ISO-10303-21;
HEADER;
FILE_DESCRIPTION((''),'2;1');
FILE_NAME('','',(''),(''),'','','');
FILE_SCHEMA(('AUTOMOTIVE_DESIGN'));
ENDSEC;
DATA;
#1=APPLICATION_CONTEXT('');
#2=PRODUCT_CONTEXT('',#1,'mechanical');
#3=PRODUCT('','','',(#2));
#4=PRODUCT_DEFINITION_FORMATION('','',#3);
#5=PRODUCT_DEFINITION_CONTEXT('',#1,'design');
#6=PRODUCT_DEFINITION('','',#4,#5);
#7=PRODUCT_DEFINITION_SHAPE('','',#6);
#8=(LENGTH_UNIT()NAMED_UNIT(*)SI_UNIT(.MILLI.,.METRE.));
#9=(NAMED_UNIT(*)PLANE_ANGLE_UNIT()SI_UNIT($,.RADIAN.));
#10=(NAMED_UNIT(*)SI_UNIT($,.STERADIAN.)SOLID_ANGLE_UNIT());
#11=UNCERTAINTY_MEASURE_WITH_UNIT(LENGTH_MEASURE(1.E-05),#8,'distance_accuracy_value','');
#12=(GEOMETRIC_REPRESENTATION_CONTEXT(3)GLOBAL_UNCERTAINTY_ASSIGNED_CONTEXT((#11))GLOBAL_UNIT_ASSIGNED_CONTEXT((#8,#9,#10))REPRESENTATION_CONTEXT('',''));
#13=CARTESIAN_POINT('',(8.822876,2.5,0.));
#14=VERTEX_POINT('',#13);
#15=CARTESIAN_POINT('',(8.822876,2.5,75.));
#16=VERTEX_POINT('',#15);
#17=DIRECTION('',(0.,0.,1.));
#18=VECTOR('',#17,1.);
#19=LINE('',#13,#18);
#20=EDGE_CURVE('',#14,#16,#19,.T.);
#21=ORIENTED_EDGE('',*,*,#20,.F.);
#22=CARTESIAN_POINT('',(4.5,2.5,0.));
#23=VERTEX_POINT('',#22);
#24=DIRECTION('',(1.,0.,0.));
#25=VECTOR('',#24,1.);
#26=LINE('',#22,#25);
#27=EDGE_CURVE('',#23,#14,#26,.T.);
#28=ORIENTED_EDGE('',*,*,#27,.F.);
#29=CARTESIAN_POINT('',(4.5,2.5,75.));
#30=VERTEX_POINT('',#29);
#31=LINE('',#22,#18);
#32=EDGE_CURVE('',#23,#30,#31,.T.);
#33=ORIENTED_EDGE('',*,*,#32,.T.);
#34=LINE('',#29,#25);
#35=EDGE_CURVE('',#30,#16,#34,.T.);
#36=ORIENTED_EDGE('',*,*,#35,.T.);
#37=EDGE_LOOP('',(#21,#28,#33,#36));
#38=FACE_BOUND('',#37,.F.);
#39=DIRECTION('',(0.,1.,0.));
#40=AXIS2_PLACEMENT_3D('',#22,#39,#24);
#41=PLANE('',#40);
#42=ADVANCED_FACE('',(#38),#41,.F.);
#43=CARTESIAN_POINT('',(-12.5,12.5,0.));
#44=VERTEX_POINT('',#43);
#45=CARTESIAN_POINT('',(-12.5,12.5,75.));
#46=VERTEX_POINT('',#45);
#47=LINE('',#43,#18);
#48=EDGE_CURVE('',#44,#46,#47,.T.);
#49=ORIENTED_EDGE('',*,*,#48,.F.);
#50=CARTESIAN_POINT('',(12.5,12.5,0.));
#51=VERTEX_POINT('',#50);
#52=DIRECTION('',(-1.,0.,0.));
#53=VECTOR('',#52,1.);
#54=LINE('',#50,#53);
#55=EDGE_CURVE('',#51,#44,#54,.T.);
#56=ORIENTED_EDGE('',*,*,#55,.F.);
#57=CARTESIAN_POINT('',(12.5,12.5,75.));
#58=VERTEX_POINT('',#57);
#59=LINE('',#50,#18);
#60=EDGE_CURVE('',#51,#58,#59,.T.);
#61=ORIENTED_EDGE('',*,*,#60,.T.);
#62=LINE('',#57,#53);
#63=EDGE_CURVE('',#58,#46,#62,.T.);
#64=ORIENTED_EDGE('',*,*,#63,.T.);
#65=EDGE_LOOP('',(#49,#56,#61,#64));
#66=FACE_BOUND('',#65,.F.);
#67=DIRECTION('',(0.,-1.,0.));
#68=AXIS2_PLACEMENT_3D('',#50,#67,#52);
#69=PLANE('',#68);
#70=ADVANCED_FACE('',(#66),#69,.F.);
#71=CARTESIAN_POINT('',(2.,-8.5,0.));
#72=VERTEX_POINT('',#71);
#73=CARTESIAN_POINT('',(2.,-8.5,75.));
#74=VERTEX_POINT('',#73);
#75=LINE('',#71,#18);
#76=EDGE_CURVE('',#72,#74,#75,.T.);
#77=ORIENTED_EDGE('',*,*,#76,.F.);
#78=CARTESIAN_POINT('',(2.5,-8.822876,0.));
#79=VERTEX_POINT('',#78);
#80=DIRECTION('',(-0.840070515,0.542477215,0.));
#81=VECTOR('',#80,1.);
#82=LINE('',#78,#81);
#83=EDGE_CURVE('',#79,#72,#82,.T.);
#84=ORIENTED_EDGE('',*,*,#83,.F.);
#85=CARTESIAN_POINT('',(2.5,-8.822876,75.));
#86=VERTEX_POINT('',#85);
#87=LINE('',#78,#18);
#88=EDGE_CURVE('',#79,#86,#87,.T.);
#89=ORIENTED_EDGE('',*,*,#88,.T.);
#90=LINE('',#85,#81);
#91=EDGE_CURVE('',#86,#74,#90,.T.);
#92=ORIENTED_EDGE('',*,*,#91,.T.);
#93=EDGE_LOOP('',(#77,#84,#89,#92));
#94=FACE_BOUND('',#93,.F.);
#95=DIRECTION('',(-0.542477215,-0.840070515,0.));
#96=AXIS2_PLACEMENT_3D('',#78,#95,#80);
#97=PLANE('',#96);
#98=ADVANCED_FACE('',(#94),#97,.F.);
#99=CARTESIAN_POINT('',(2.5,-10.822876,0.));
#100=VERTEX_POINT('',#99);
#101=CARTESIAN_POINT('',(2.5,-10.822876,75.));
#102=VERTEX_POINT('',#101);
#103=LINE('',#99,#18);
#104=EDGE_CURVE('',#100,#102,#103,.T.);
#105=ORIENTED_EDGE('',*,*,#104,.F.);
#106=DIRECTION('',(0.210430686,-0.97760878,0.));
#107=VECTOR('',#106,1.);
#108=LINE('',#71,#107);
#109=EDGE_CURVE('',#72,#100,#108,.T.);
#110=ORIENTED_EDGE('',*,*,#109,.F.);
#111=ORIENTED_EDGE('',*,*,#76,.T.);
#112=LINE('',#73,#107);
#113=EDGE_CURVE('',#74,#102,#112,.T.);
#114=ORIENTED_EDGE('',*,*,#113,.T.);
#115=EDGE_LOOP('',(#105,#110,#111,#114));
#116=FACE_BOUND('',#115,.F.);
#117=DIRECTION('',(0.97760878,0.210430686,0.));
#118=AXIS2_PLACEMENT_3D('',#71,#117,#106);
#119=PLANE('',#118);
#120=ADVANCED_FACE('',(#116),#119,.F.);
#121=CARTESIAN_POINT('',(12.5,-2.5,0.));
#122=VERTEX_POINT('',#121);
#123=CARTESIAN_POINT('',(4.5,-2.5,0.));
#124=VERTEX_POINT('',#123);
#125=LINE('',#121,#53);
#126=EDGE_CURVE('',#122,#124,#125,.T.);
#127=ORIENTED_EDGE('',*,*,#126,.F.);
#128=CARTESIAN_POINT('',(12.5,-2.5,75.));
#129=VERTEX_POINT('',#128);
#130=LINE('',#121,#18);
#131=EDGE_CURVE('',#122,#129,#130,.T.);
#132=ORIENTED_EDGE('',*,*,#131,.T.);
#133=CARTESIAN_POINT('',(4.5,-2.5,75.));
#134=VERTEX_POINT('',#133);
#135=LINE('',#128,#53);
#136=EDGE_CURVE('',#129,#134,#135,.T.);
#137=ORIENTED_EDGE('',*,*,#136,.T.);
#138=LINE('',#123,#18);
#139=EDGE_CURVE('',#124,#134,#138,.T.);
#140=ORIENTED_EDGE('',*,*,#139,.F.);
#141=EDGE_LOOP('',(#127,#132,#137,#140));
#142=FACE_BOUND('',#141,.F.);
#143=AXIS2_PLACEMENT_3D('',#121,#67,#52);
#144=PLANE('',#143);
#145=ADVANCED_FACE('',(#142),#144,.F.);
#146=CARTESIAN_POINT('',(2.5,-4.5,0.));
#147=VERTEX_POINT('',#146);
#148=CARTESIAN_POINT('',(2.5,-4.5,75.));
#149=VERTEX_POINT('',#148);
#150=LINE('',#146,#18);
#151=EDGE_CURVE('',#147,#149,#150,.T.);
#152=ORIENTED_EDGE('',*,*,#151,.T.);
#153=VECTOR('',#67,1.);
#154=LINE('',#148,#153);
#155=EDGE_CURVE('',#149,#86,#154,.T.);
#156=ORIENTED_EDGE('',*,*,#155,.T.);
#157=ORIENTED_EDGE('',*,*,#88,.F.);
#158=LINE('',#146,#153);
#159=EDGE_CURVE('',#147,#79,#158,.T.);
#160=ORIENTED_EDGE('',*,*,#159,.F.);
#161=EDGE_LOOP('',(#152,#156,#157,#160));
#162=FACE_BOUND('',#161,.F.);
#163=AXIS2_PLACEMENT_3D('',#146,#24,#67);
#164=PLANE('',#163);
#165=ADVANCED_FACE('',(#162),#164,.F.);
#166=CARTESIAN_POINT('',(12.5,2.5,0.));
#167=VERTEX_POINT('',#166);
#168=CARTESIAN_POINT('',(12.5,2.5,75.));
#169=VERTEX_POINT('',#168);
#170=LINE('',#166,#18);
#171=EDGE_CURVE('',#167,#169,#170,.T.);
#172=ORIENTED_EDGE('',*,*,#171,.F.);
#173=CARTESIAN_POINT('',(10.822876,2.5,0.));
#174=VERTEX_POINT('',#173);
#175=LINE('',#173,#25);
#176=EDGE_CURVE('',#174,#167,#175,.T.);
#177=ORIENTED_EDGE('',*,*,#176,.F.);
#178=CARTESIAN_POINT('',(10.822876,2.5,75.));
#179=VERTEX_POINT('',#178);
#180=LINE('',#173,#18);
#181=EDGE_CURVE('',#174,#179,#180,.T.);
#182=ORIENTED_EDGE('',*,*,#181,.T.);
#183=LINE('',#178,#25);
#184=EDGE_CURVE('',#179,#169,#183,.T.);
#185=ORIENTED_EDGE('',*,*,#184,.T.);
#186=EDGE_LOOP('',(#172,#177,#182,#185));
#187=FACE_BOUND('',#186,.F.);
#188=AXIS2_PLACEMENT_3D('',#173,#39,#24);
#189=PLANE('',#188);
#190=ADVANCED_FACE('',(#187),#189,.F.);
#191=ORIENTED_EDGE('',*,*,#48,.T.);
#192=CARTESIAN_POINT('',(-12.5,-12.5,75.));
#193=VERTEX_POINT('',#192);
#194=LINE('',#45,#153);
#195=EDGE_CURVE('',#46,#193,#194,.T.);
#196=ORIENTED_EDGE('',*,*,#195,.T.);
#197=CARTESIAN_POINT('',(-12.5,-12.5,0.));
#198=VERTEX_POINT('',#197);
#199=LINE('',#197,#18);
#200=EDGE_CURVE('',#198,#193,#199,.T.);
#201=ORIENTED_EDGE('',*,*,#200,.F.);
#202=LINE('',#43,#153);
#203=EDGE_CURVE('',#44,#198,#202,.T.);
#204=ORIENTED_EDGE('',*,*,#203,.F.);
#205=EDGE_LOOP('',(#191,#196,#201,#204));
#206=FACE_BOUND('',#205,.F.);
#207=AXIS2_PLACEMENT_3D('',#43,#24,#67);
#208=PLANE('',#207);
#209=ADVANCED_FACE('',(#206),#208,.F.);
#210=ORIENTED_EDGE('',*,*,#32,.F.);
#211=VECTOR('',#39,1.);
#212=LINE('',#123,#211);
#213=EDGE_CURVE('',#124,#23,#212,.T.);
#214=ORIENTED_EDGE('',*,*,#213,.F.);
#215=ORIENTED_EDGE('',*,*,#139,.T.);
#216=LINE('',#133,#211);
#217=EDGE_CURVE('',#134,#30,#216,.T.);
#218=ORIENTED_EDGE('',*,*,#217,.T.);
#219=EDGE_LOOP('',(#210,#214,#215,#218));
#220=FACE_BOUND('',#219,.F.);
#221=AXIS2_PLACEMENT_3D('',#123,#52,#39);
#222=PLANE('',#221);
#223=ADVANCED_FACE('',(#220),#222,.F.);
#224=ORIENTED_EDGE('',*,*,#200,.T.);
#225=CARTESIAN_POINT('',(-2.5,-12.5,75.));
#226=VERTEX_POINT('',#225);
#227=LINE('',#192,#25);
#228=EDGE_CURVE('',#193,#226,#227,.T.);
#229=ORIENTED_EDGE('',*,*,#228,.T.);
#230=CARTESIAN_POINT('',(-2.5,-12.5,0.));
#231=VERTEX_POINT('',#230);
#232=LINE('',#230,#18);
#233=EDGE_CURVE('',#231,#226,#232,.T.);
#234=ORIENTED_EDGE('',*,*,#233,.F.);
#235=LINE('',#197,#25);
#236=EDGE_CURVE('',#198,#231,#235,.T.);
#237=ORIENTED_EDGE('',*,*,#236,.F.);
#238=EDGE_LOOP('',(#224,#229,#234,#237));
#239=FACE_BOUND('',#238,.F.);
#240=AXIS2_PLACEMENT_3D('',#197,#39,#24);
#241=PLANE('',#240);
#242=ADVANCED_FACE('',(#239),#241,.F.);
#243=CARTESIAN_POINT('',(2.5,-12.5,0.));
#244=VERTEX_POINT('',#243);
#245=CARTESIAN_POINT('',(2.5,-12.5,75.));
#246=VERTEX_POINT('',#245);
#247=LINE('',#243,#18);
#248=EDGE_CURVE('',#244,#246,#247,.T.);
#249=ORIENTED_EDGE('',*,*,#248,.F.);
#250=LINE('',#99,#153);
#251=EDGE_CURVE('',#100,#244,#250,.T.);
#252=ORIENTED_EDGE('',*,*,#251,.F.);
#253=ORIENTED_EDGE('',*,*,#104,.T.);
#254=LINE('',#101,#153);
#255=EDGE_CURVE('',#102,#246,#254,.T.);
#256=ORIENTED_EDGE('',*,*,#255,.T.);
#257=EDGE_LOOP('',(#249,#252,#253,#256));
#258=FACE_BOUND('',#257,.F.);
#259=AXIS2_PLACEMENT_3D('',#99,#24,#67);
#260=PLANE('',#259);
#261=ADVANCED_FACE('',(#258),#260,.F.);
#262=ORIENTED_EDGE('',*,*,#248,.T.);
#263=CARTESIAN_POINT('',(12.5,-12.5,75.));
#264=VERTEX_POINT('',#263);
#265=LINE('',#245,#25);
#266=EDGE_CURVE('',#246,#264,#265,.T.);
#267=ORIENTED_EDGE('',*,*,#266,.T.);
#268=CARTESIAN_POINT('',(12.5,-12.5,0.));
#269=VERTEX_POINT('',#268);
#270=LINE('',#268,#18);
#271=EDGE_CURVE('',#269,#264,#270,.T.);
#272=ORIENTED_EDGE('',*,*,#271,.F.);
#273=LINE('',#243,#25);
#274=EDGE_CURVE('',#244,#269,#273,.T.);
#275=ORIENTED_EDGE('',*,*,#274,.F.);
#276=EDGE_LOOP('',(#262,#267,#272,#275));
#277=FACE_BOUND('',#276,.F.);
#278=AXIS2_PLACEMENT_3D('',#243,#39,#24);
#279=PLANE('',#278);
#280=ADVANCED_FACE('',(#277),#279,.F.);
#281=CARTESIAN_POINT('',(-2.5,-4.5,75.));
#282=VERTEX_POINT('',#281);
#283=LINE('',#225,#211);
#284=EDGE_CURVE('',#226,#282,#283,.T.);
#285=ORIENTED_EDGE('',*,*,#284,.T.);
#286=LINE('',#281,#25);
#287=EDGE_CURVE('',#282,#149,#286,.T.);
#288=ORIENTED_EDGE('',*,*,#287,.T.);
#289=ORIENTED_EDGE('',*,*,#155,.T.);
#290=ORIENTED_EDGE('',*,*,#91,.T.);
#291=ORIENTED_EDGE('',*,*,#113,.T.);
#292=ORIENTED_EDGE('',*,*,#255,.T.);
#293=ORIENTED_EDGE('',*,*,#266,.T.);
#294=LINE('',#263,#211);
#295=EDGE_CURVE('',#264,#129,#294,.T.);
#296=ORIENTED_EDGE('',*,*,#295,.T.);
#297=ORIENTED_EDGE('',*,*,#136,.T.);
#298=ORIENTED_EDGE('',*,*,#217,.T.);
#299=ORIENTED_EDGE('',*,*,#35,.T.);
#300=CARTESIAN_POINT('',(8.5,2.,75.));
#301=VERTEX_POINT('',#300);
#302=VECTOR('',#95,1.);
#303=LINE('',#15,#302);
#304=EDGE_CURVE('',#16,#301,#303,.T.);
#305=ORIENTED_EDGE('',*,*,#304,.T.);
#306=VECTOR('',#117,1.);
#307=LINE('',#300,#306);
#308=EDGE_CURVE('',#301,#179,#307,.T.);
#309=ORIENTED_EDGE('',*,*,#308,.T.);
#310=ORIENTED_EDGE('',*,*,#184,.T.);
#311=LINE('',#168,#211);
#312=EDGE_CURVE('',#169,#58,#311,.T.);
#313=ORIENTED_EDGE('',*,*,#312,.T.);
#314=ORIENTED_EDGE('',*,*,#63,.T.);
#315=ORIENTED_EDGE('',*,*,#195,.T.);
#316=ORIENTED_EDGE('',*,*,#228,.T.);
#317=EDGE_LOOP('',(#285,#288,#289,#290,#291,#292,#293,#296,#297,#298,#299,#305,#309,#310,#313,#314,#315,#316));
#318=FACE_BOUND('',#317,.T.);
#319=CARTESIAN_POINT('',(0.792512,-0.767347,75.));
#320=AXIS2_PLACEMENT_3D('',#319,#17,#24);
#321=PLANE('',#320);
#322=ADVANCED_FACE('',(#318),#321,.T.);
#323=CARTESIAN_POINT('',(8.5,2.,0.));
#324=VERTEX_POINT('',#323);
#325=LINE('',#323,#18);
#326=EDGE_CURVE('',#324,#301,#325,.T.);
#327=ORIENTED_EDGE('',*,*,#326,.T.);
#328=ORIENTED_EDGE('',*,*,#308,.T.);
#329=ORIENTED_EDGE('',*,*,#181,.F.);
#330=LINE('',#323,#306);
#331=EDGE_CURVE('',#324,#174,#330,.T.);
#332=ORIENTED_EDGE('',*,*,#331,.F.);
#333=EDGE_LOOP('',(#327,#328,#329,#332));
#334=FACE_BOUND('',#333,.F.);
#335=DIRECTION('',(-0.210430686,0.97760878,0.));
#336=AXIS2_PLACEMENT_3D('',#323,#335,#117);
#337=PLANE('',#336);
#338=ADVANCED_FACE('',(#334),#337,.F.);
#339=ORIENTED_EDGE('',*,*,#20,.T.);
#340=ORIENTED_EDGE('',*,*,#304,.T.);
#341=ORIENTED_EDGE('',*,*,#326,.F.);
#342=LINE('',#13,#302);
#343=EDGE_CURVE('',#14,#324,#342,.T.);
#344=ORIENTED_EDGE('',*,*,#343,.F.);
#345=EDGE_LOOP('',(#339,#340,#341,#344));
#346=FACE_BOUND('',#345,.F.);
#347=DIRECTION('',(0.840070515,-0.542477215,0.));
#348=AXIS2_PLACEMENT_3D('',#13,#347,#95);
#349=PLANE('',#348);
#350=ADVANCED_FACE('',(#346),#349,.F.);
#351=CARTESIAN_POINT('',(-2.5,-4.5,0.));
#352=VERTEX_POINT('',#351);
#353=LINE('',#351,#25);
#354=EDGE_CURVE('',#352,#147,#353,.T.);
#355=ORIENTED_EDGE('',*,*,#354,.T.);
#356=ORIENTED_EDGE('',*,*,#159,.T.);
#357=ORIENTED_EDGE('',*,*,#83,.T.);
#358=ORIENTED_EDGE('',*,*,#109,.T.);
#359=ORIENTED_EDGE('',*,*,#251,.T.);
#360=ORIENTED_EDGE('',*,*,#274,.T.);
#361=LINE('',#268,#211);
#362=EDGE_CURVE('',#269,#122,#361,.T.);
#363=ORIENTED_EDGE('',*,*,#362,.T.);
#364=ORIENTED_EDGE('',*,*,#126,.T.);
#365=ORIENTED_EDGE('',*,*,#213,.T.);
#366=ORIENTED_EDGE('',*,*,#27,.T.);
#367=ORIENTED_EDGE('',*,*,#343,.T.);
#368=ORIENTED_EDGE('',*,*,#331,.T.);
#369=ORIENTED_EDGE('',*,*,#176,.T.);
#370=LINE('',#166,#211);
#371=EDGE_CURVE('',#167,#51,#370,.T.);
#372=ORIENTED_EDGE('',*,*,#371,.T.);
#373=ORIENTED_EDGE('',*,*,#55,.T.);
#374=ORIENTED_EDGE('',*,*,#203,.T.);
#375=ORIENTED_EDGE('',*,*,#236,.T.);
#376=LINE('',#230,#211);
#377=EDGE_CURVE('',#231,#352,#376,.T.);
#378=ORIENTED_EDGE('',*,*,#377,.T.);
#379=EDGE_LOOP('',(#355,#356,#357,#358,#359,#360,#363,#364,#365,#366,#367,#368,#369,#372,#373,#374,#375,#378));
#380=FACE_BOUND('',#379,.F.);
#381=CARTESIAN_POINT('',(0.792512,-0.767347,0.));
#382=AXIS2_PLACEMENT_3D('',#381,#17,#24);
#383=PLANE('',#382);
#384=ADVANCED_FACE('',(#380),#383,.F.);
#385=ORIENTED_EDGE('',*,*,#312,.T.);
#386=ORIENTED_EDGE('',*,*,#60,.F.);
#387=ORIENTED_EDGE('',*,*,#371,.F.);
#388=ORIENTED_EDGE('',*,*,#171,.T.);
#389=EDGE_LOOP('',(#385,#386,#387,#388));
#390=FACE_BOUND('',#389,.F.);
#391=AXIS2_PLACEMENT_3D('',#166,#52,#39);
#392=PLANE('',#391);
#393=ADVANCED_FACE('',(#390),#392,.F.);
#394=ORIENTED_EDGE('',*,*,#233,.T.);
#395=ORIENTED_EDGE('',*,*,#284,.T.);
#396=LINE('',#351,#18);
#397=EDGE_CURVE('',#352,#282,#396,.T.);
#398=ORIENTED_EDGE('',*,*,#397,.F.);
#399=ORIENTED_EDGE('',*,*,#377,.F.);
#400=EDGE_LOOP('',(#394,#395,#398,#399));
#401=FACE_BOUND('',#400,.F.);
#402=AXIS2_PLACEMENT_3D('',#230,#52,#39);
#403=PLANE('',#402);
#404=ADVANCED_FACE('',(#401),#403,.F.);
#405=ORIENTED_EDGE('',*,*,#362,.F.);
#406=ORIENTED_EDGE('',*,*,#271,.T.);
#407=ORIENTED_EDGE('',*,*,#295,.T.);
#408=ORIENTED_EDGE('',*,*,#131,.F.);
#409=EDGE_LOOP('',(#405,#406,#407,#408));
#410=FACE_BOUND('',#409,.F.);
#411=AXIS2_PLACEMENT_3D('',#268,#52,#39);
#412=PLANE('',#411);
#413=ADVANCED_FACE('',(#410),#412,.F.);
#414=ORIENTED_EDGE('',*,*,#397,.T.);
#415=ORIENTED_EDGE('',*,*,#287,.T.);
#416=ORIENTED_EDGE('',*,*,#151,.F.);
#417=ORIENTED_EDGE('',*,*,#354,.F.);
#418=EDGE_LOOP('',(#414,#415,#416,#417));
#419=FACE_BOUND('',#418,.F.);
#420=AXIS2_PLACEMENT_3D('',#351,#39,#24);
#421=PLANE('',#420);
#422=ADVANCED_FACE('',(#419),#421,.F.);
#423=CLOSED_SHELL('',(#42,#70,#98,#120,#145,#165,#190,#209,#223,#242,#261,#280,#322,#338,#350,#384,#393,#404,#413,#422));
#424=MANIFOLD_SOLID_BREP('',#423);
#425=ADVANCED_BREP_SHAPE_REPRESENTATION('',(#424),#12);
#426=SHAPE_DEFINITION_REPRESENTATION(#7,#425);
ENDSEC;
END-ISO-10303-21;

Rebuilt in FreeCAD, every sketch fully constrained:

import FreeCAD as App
import Part
import Sketcher

V = App.Vector

doc = App.newDocument("Part")
body = doc.addObject("PartDesign::Body", "Body")

# Sketch on XY plane
sketch1 = body.newObject("Sketcher::SketchObject", "Sketch")
sketch1.AttachmentSupport = (doc.getObject("XY_Plane"), [""])
sketch1.MapMode = "FlatFace"
sketch1.addGeometry([
    Part.LineSegment(V(2.5, -12.5, 0), V(12.5, -12.5, 0)),  # 0
    Part.LineSegment(V(12.5, -12.5, 0), V(12.5, -2.5, 0)),  # 1
    Part.LineSegment(V(12.5, -2.5, 0), V(4.5, -2.5, 0)),  # 2
    Part.LineSegment(V(4.5, -2.5, 0), V(4.5, 2.5, 0)),  # 3
    Part.LineSegment(V(4.5, 2.5, 0), V(8.8, 2.5, 0)),  # 4
    Part.LineSegment(V(8.8, 2.5, 0), V(8.5, 2, 0)),  # 5
    Part.LineSegment(V(8.5, 2, 0), V(10.8, 2.5, 0)),  # 6
    Part.LineSegment(V(10.8, 2.5, 0), V(12.5, 2.5, 0)),  # 7
    Part.LineSegment(V(12.5, 2.5, 0), V(12.5, 12.5, 0)),  # 8
    Part.LineSegment(V(12.5, 12.5, 0), V(-12.5, 12.5, 0)),  # 9
    Part.LineSegment(V(-12.5, 12.5, 0), V(-12.5, -12.5, 0)),  # 10
    Part.LineSegment(V(-12.5, -12.5, 0), V(-2.5, -12.5, 0)),  # 11
    Part.LineSegment(V(-2.5, -12.5, 0), V(-2.5, -4.5, 0)),  # 12
    Part.LineSegment(V(-2.5, -4.5, 0), V(2.5, -4.5, 0)),  # 13
    Part.LineSegment(V(2.5, -4.5, 0), V(2.5, -8.8, 0)),  # 14
    Part.LineSegment(V(2.5, -8.8, 0), V(2, -8.5, 0)),  # 15
    Part.LineSegment(V(2, -8.5, 0), V(2.5, -10.8, 0)),  # 16
    Part.LineSegment(V(2.5, -10.8, 0), V(2.5, -12.5, 0)),  # 17
], False)
sketch1.addConstraint([
    Sketcher.Constraint("Coincident", 0, 2, 1, 1),
    Sketcher.Constraint("Coincident", 1, 2, 2, 1),
    Sketcher.Constraint("Coincident", 2, 2, 3, 1),
    Sketcher.Constraint("Coincident", 3, 2, 4, 1),
    Sketcher.Constraint("Coincident", 4, 2, 5, 1),
    Sketcher.Constraint("Coincident", 5, 2, 6, 1),
    Sketcher.Constraint("Coincident", 6, 2, 7, 1),
    Sketcher.Constraint("Coincident", 7, 2, 8, 1),
    Sketcher.Constraint("Coincident", 8, 2, 9, 1),
    Sketcher.Constraint("Coincident", 9, 2, 10, 1),
    Sketcher.Constraint("Coincident", 10, 2, 11, 1),
    Sketcher.Constraint("Coincident", 11, 2, 12, 1),
    Sketcher.Constraint("Coincident", 12, 2, 13, 1),
    Sketcher.Constraint("Coincident", 13, 2, 14, 1),
    Sketcher.Constraint("Coincident", 14, 2, 15, 1),
    Sketcher.Constraint("Coincident", 15, 2, 16, 1),
    Sketcher.Constraint("Coincident", 16, 2, 17, 1),
    Sketcher.Constraint("Coincident", 17, 2, 0, 1),
    Sketcher.Constraint("Horizontal", 0),
    Sketcher.Constraint("Vertical", 1),
    Sketcher.Constraint("Horizontal", 2),
    Sketcher.Constraint("Vertical", 3),
    Sketcher.Constraint("Horizontal", 4),
    Sketcher.Constraint("Horizontal", 7),
    Sketcher.Constraint("Vertical", 8),
    Sketcher.Constraint("Horizontal", 9),
    Sketcher.Constraint("Vertical", 10),
    Sketcher.Constraint("Horizontal", 11),
    Sketcher.Constraint("Vertical", 12),
    Sketcher.Constraint("Horizontal", 13),
    Sketcher.Constraint("Vertical", 14),
    Sketcher.Constraint("Vertical", 17),
    Sketcher.Constraint("Symmetric", 0, 2, 9, 2, -1, 1),
    Sketcher.Constraint("Symmetric", 8, 2, 10, 2, -1, 1),
    Sketcher.Constraint("Perpendicular", 5, 15),
    Sketcher.Constraint("Perpendicular", 6, 16),
    Sketcher.Constraint("Horizontal", 4, 2, 6, 2),
    Sketcher.Constraint("Vertical", 14, 2, 16, 2),
    Sketcher.Constraint("Equal", 0, 11),
    Sketcher.Constraint("Equal", 11, 1),
    Sketcher.Constraint("Equal", 13, 3),
    Sketcher.Constraint("Equal", 1, 8),
    Sketcher.Constraint("Equal", 2, 12),
    Sketcher.Constraint("Equal", 4, 14),
    Sketcher.Constraint("Equal", 7, 17),
    Sketcher.Constraint("DistanceX", 0, 1, 0, 2, 10.0),
    Sketcher.Constraint("DistanceX", 2, 2, 2, 1, 8.0),
    Sketcher.Constraint("DistanceX", 9, 2, 9, 1, 25.0),
    Sketcher.Constraint("DistanceY", -1, 1, 5, 2, 2.0),
    Sketcher.Constraint("DistanceX", 3, 2, 5, 2, 4.0),
    Sketcher.Constraint("DistanceX", 4, 2, 6, 2, 2.0),
    Sketcher.Constraint("Distance", 5, 0.595188),
])
pad1 = body.newObject("PartDesign::Pad", "Pad")
pad1.Profile = sketch1
pad1.Length = 75

doc.recompute()
